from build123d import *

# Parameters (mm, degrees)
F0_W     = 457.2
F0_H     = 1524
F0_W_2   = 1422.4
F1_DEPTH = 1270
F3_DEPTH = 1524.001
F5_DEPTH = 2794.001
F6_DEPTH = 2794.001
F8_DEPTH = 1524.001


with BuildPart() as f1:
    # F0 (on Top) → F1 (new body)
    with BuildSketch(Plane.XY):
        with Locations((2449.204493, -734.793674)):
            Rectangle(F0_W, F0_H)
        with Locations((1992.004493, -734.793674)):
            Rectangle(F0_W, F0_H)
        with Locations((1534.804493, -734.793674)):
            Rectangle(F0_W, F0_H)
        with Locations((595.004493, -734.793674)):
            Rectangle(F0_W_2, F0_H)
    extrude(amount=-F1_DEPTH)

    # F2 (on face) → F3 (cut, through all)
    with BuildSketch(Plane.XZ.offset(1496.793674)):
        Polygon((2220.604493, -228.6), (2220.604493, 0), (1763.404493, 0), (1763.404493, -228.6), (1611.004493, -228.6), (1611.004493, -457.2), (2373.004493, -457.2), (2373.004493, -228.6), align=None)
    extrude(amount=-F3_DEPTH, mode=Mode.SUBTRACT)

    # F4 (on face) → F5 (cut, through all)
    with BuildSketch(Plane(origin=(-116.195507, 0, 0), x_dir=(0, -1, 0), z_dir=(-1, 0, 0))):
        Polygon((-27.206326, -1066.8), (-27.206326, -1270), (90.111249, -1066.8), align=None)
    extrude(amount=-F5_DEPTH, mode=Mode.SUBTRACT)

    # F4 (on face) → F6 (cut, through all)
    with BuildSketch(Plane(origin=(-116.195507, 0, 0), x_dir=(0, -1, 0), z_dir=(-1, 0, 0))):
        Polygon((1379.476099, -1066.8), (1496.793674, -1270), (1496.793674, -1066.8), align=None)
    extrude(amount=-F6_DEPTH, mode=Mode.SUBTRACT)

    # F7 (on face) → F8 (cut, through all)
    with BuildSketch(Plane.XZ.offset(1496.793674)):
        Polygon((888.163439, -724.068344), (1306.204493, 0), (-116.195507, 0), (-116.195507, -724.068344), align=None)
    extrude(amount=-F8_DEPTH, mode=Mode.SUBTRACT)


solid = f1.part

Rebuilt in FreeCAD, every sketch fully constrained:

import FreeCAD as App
import Part
import Sketcher
from FreeCAD import Vector
Q = App.Units.Quantity


def add_polygon(sketch, points):
    """Adds a closed chain of lines whose ends are joined by coincident constraints."""
    first, n = sketch.GeometryCount, len(points)
    for a, b in zip(points, points[1:] + points[:1]):
        sketch.addGeometry(Part.LineSegment(App.Vector(*a, 0), App.Vector(*b, 0)), False)
    for i in range(n):
        sketch.addConstraint(Sketcher.Constraint("Coincident", first + i, 2, first + (i + 1) % n, 1))

doc = App.newDocument("Part")
body = doc.addObject("PartDesign::Body", "Body")

# Sketch on XY plane
sketch1 = doc.addObject("Sketcher::SketchObject", "Sketch")
body.addObject(sketch1)
sketch1.AttachmentSupport = (doc.XY_Plane, [""])
sketch1.MapMode = "FlatFace"
add_polygon(sketch1, [(2678, -1497), (2678, 27), (-116, 27), (-116, -1497)])  # lines 0-3
sketch1.addConstraint([
    Sketcher.Constraint("Vertical", 0),
    Sketcher.Constraint("Horizontal", 1),
    Sketcher.Constraint("Vertical", 2),
    Sketcher.Constraint("Horizontal", 3),
    Sketcher.Constraint("DistanceX", 1, 2, 1, 1, Q("110 in")),
    Sketcher.Constraint("DistanceY", 0, 1, 0, 2, Q("60 in")),
    Sketcher.Constraint("DistanceX", -1, 1, 0, 2, 2677.804493),
    Sketcher.Constraint("DistanceY", -1, 1, 0, 2, 27.206326),
])
pad1 = doc.addObject("PartDesign::Pad", "Pad")
body.addObject(pad1)
pad1.Profile = sketch1
pad1.Length = Q("50 in")
pad1.Reversed = True

# Sketch on XZ plane
sketch2 = doc.addObject("Sketcher::SketchObject", "Sketch001")
body.addObject(sketch2)
sketch2.AttachmentSupport = (doc.XZ_Plane, [""])
sketch2.MapMode = "FlatFace"
sketch2.AttachmentOffset = App.Placement(Vector(0, 0, 1496.793674), App.Rotation())
add_polygon(sketch2, [(2221, -229), (2221, 0), (1763, 0), (1763, -229), (1611, -229), (1611, -457), (2373, -457), (2373, -229)])  # lines 0-7
sketch2.addConstraint([
    Sketcher.Constraint("Vertical", 0),
    Sketcher.Constraint("Horizontal", 1),
    Sketcher.Constraint("Vertical", 2),
    Sketcher.Constraint("Horizontal", 3),
    Sketcher.Constraint("Vertical", 4),
    Sketcher.Constraint("Horizontal", 5),
    Sketcher.Constraint("Vertical", 6),
    Sketcher.Constraint("Horizontal", 7),
    Sketcher.Constraint("PointOnObject", 0, 2, -1),
    Sketcher.Constraint("Horizontal", 3, 2, 6, 2),
    Sketcher.Constraint("Equal", 3, 7),
    Sketcher.Constraint("Equal", 2, 4),
    Sketcher.Constraint("DistanceX", 1, 2, 1, 1, Q("18 in")),
    Sketcher.Constraint("DistanceX", 3, 2, 3, 1, Q("6 in")),
    Sketcher.Constraint("DistanceY", 0, 1, 0, 2, Q("9 in")),
    Sketcher.Constraint("DistanceX", -1, 1, 0, 2, 2220.604493),
])
pocket1 = doc.addObject("PartDesign::Pocket", "Pocket")
body.addObject(pocket1)
pocket1.Profile = sketch2
pocket1.Type = "ThroughAll"

# Sketch on YZ plane
sketch3 = doc.addObject("Sketcher::SketchObject", "Sketch002")
body.addObject(sketch3)
sketch3.AttachmentSupport = (doc.YZ_Plane, [""])
sketch3.MapMode = "FlatFace"
sketch3.AttachmentOffset = App.Placement(Vector(0, 0, -116.195507), App.Rotation())
add_polygon(sketch3, [(27, -1067), (27, -1270), (-90, -1067)])  # lines 0-2
sketch3.addConstraint([
    Sketcher.Constraint("Vertical", 0),
    Sketcher.Constraint("Horizontal", 2),
    Sketcher.Constraint("DistanceY", 0, 2, 0, 1, Q("8 in")),
    Sketcher.Constraint("DistanceY", 0, 2, -1, 1, Q("50 in")),
    Sketcher.Constraint("Angle", 1, Q("120 deg")),
    Sketcher.Constraint("DistanceX", 1, 2, -1, 1, 90.111249),
])
pocket2 = doc.addObject("PartDesign::Pocket", "Pocket001")
body.addObject(pocket2)
pocket2.Profile = sketch3
pocket2.Type = "ThroughAll"
pocket2.Reversed = True

# Sketch on YZ plane
sketch4 = doc.addObject("Sketcher::SketchObject", "Sketch003")
body.addObject(sketch4)
sketch4.AttachmentSupport = (doc.YZ_Plane, [""])
sketch4.MapMode = "FlatFace"
sketch4.AttachmentOffset = App.Placement(Vector(0, 0, -116.195507), App.Rotation())
add_polygon(sketch4, [(-1379, -1067), (-1497, -1270), (-1497, -1067)])  # lines 0-2
sketch4.addConstraint([
    Sketcher.Constraint("Vertical", 1),
    Sketcher.Constraint("Horizontal", 2),
    Sketcher.Constraint("DistanceY", 1, 1, 1, 2, Q("8 in")),
    Sketcher.Constraint("DistanceY", 0, 2, -1, 1, Q("50 in")),
    Sketcher.Constraint("Angle", 0, Q("-120 deg")),
    Sketcher.Constraint("DistanceX", 2, 2, -1, 1, 1379.476099),
])
pocket3 = doc.addObject("PartDesign::Pocket", "Pocket002")
body.addObject(pocket3)
pocket3.Profile = sketch4
pocket3.Type = "ThroughAll"
pocket3.Reversed = True

# Sketch on XZ plane
sketch5 = doc.addObject("Sketcher::SketchObject", "Sketch004")
body.addObject(sketch5)
sketch5.AttachmentSupport = (doc.XZ_Plane, [""])
sketch5.MapMode = "FlatFace"
sketch5.AttachmentOffset = App.Placement(Vector(0, 0, 1496.793674), App.Rotation())
add_polygon(sketch5, [(888, -724), (1306, 0), (-116, 0), (-116, -724)])  # lines 0-3
sketch5.addConstraint([
    Sketcher.Constraint("Horizontal", 1),
    Sketcher.Constraint("Vertical", 2),
    Sketcher.Constraint("Horizontal", 3),
    Sketcher.Constraint("PointOnObject", 0, 2, -1),
    Sketcher.Constraint("DistanceX", 1, 2, 1, 1, Q("56 in")),
    Sketcher.Constraint("Angle", 0, Q("60 deg")),
    Sketcher.Constraint("DistanceX", 3, 1, 3, 2, 1004.358946),
    Sketcher.Constraint("DistanceX", -1, 1, 3, 2, 888.163439),
])
pocket4 = doc.addObject("PartDesign::Pocket", "Pocket003")
body.addObject(pocket4)
pocket4.Profile = sketch5
pocket4.Type = "ThroughAll"

doc.recompute()
